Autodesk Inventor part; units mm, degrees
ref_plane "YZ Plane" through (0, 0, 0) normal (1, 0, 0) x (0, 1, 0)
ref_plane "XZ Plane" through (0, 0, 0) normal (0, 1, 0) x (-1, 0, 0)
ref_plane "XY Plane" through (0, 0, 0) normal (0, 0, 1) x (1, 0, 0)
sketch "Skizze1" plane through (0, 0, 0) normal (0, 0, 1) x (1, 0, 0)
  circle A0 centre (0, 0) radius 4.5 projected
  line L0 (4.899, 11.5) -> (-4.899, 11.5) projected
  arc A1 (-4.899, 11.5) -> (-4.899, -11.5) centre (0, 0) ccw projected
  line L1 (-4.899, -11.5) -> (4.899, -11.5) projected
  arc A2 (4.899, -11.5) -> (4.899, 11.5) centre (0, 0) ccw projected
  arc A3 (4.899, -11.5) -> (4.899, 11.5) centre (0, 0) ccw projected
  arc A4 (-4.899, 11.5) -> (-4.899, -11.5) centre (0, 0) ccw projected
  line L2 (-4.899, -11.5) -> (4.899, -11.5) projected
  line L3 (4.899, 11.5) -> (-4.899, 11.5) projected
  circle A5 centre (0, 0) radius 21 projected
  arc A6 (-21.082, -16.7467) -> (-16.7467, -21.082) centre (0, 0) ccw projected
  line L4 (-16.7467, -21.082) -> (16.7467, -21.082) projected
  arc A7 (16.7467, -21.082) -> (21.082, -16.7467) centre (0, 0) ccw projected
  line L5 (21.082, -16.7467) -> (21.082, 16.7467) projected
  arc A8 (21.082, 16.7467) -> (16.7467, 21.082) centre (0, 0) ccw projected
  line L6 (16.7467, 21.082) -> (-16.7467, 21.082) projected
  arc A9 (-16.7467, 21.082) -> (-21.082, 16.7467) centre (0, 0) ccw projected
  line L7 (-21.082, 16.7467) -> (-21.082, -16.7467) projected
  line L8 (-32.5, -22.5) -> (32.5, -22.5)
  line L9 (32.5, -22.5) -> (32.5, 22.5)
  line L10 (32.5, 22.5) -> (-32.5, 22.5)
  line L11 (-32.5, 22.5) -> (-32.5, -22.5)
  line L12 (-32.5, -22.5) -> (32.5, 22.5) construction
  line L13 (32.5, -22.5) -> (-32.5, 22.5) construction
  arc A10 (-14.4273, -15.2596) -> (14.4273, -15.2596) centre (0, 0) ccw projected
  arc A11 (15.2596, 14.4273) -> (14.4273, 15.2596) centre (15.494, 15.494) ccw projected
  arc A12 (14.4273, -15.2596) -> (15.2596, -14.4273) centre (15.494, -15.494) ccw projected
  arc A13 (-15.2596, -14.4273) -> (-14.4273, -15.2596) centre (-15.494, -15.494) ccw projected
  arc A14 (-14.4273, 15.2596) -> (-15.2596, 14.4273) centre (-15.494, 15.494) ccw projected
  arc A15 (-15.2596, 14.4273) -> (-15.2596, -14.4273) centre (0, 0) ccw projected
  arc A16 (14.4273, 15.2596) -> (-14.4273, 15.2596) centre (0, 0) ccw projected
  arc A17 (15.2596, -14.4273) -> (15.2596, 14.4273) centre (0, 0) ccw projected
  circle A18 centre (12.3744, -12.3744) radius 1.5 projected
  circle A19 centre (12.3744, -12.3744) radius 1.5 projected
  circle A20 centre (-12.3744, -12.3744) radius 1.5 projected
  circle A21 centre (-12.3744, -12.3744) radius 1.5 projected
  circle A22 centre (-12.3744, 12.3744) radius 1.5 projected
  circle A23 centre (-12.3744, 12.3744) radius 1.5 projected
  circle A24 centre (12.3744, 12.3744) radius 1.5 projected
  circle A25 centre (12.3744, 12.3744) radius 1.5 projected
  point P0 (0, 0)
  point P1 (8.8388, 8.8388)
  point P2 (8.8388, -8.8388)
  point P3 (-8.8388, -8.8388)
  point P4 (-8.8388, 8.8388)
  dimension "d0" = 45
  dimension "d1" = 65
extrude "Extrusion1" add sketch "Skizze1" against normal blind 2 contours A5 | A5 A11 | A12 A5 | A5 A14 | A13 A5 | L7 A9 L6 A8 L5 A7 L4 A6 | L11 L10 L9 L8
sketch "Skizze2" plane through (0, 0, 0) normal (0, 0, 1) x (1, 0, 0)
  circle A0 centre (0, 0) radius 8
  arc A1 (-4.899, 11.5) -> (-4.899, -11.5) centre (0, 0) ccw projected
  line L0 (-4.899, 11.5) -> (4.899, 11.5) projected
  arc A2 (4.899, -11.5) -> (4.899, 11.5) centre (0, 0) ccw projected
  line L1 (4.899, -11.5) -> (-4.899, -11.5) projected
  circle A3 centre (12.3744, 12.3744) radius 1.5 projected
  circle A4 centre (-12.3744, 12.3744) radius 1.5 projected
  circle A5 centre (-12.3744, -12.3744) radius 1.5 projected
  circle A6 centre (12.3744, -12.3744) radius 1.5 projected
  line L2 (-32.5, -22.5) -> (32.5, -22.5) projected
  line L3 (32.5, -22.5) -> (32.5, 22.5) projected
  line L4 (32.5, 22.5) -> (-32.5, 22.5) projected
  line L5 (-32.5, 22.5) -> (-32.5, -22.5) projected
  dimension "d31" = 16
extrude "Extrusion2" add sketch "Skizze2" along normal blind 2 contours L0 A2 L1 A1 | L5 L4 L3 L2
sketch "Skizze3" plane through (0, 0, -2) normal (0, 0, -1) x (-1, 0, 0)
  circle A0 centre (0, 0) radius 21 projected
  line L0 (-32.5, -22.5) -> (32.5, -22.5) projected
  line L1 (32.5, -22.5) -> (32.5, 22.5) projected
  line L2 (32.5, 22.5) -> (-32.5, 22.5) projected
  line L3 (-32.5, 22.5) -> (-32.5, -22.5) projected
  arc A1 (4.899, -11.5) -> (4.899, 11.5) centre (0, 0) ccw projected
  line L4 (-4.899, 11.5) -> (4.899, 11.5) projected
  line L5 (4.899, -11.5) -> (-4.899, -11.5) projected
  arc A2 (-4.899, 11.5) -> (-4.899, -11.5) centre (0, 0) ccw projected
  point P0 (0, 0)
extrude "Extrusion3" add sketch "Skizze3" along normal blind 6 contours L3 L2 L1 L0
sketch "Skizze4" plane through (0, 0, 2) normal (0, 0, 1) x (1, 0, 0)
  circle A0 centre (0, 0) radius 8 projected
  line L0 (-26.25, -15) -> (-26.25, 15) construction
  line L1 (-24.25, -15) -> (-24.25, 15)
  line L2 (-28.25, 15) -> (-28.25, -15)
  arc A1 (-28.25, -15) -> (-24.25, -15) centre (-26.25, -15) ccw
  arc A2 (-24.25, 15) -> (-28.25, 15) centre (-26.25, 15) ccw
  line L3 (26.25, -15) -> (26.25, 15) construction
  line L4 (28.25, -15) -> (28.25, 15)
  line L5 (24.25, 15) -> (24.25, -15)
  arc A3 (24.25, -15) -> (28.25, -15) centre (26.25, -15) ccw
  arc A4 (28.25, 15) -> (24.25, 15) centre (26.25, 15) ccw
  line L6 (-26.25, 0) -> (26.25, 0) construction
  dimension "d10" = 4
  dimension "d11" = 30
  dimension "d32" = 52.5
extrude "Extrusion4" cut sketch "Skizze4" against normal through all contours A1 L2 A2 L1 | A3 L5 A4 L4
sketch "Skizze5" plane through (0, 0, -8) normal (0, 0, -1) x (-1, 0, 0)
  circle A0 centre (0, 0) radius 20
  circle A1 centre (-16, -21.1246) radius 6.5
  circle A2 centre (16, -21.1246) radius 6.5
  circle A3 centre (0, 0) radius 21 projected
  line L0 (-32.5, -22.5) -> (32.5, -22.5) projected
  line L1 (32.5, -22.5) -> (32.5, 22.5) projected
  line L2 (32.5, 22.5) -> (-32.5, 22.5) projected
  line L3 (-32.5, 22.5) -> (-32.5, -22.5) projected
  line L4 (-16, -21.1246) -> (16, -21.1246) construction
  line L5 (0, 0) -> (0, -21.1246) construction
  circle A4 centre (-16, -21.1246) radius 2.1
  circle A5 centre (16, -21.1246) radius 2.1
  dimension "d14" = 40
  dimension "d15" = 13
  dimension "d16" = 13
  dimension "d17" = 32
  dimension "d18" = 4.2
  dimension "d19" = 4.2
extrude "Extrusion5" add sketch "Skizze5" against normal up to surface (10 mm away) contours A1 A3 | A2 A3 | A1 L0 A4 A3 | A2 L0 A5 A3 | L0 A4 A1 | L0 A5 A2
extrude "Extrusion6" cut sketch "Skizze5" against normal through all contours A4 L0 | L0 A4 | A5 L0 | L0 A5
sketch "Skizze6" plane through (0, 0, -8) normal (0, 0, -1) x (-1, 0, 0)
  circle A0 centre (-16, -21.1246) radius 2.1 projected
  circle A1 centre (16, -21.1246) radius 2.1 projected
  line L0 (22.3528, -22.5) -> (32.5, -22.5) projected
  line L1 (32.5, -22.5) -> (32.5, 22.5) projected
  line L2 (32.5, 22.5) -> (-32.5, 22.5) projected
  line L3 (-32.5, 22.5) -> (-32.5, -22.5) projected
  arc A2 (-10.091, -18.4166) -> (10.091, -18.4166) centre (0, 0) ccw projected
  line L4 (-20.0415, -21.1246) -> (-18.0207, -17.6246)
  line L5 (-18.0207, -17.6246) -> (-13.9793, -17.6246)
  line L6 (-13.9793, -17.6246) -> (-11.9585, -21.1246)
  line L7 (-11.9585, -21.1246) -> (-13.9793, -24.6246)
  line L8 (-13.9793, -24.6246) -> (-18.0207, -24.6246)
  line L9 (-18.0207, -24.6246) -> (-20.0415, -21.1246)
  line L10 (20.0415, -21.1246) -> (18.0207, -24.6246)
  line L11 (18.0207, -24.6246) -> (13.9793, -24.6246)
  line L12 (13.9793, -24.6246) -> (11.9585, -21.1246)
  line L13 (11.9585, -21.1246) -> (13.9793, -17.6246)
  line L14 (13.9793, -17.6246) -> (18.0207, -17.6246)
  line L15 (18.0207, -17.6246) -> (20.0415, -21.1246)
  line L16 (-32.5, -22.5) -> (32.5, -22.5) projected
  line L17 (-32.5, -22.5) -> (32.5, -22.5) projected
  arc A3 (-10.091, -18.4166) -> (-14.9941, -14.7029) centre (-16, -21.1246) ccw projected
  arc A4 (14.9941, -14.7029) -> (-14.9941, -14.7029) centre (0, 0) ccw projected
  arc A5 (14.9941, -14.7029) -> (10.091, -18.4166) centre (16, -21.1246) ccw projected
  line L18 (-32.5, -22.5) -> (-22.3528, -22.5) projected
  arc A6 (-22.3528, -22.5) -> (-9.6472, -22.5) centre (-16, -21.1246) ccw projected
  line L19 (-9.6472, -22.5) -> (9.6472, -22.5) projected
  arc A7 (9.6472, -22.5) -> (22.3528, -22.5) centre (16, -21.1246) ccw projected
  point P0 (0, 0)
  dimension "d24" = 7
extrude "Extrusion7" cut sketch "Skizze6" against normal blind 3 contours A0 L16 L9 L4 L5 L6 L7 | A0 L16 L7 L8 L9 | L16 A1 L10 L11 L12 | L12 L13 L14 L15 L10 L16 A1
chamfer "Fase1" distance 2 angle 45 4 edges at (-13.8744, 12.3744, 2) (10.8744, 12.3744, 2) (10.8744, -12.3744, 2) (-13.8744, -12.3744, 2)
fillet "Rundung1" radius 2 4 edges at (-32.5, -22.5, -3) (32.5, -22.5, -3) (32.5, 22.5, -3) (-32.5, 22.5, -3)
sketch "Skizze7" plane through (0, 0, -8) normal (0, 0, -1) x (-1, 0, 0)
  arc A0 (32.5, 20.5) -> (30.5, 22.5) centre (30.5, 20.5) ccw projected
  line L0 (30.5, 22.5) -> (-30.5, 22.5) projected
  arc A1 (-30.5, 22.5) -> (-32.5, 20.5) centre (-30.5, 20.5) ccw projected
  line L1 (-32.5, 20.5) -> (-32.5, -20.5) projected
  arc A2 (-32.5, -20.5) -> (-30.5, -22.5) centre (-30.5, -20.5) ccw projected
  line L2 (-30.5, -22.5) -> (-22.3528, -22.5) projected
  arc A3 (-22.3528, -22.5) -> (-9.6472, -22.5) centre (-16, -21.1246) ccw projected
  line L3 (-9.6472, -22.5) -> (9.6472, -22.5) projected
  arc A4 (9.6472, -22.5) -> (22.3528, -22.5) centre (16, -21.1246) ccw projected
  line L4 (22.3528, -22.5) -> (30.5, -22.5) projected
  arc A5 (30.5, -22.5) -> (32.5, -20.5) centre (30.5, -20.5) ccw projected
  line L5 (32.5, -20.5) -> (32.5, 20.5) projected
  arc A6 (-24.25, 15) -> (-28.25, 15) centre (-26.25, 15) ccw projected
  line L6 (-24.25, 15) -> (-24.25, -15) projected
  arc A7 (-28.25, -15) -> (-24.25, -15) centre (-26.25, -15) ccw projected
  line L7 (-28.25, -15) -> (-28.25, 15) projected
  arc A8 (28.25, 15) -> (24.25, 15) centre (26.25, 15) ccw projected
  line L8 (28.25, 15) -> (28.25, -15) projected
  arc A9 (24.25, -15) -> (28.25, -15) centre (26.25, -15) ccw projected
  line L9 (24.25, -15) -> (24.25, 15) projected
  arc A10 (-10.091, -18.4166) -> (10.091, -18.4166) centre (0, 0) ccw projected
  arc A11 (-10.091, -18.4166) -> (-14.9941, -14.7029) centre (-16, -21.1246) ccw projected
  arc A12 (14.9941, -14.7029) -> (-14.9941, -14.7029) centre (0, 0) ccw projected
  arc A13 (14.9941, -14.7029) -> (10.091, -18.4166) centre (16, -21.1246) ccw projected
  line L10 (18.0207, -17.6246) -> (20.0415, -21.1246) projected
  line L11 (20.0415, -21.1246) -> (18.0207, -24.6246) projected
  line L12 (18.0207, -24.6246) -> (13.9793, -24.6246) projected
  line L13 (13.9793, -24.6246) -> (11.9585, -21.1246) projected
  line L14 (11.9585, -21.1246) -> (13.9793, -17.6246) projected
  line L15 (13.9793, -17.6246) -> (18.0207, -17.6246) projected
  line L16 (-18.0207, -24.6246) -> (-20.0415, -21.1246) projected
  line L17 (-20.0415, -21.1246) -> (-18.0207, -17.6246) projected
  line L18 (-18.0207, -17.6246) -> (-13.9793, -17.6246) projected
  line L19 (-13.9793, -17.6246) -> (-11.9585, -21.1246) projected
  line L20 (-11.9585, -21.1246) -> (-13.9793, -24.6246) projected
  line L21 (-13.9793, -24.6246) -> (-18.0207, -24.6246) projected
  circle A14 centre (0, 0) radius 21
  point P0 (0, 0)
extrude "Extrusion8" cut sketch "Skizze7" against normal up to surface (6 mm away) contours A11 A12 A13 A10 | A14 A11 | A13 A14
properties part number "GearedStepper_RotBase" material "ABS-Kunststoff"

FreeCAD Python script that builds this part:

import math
import FreeCAD as App
import Part
import Sketcher
from FreeCAD import Vector
Q = App.Units.Quantity


def edges_at(feature, points):
    """Names of the edges that pass closest to the given points."""
    edges = feature.Shape.Edges
    near = lambda p: min(range(len(edges)), key=lambda i: edges[i].distToShape(Part.Vertex(*p))[0])
    return sorted({f"Edge{near(p) + 1}" for p in points})

doc = App.newDocument("Part")
body = doc.addObject("PartDesign::Body", "Body")

# Sketch on XY plane
sketch1 = body.newObject("Sketcher::SketchObject", "Sketch")
sketch1.AttachmentSupport = (doc.getObject("XY_Plane"), [""])
sketch1.MapMode = "FlatFace"
sketch1.addGeometry([
    Part.LineSegment(Vector(-32.5, 22.5, 0), Vector(-32.5, -22.5, 0)),  # 0
    Part.LineSegment(Vector(-32.5, -22.5, 0), Vector(32.5, -22.5, 0)),  # 1
    Part.LineSegment(Vector(32.5, -22.5, 0), Vector(32.5, 22.5, 0)),  # 2
    Part.LineSegment(Vector(32.5, 22.5, 0), Vector(-32.5, 22.5, 0)),  # 3
    Part.Circle(Vector(-12.4, -12.4, 0), Vector(0, 0, 1), 1.5),  # 4
    Part.Circle(Vector(12.4, -12.4, 0), Vector(0, 0, 1), 1.5),  # 5
    Part.Circle(Vector(-12.4, 12.4, 0), Vector(0, 0, 1), 1.5),  # 6
    Part.LineSegment(Vector(-4.9, 11.5, 0), Vector(4.9, 11.5, 0)),  # 7
    Part.ArcOfCircle(Part.Circle(Vector(0, 0, 0), Vector(0, 0, 1), 12.5), math.radians(-67), math.radians(67)),  # 8
    Part.LineSegment(Vector(4.9, -11.5, 0), Vector(-4.9, -11.5, 0)),  # 9
    Part.ArcOfCircle(Part.Circle(Vector(0, 0, 0), Vector(0, 0, 1), 12.5), math.radians(113), math.radians(247)),  # 10
    Part.Circle(Vector(12.4, 12.4, 0), Vector(0, 0, 1), 1.5),  # 11
], False)
sketch1.addConstraint([
    Sketcher.Constraint("Coincident", 0, 2, 1, 1),
    Sketcher.Constraint("Coincident", 1, 2, 2, 1),
    Sketcher.Constraint("Coincident", 2, 2, 3, 1),
    Sketcher.Constraint("Coincident", 3, 2, 0, 1),
    Sketcher.Constraint("Coincident", 7, 2, 8, 2),
    Sketcher.Constraint("Coincident", 8, 1, 9, 1),
    Sketcher.Constraint("Coincident", 9, 2, 10, 2),
    Sketcher.Constraint("Coincident", 10, 1, 7, 1),
    Sketcher.Constraint("Vertical", 0),
    Sketcher.Constraint("Horizontal", 1),
    Sketcher.Constraint("Vertical", 2),
    Sketcher.Constraint("Horizontal", 3),
    Sketcher.Constraint("Horizontal", 7),
    Sketcher.Constraint("Horizontal", 9),
    Sketcher.Constraint("Coincident", 8, 3, -1, 1),
    Sketcher.Constraint("Coincident", 10, 3, -1, 1),
    Sketcher.Constraint("Equal", 4, 5),
    Sketcher.Constraint("Equal", 5, 6),
    Sketcher.Constraint("Equal", 8, 10),
    Sketcher.Constraint("Equal", 6, 11),
    Sketcher.Constraint("Symmetric", 5, 3, 6, 3, -1, 1),
    Sketcher.Constraint("Symmetric", 4, 3, 11, 3, -1, 1),
    Sketcher.Constraint("Symmetric", 0, 2, 2, 2, -1, 1),
    Sketcher.Constraint("Symmetric", 4, 3, 5, 3, -2),
    Sketcher.Constraint("Vertical", 7, 2, 8, 1),
    Sketcher.Constraint("DistanceX", 1, 1, 1, 2, 65.0),
    Sketcher.Constraint("DistanceY", 0, 2, 0, 1, 45.0),
    Sketcher.Constraint("Diameter", 4, 3.0),
    Sketcher.Constraint("Radius", 8, 12.5),
    Sketcher.Constraint("DistanceY", 8, 1, 7, 2, 23.0),
    Sketcher.Constraint("DistanceX", 4, 3, -1, 1, 12.3744),
    Sketcher.Constraint("DistanceY", 4, 3, -1, 1, 12.3744),
])
pad1 = body.newObject("PartDesign::Pad", "Pad")
pad1.Profile = sketch1
pad1.Length = 2
pad1.Reversed = True

# Sketch on XY plane
sketch2 = body.newObject("Sketcher::SketchObject", "Sketch001")
sketch2.AttachmentSupport = (doc.getObject("XY_Plane"), [""])
sketch2.MapMode = "FlatFace"
sketch2.addGeometry([
    Part.LineSegment(Vector(-32.5, 22.5, 0), Vector(-32.5, -22.5, 0)),  # 0
    Part.LineSegment(Vector(-32.5, -22.5, 0), Vector(32.5, -22.5, 0)),  # 1
    Part.LineSegment(Vector(32.5, -22.5, 0), Vector(32.5, 22.5, 0)),  # 2
    Part.LineSegment(Vector(32.5, 22.5, 0), Vector(-32.5, 22.5, 0)),  # 3
    Part.Circle(Vector(0, 0, 0), Vector(0, 0, 1), 8),  # 4
    Part.Circle(Vector(-12.4, -12.4, 0), Vector(0, 0, 1), 1.5),  # 5
    Part.Circle(Vector(12.4, -12.4, 0), Vector(0, 0, 1), 1.5),  # 6
    Part.Circle(Vector(-12.4, 12.4, 0), Vector(0, 0, 1), 1.5),  # 7
    Part.Circle(Vector(12.4, 12.4, 0), Vector(0, 0, 1), 1.5),  # 8
], False)
sketch2.addConstraint([
    Sketcher.Constraint("Coincident", 0, 2, 1, 1),
    Sketcher.Constraint("Coincident", 1, 2, 2, 1),
    Sketcher.Constraint("Coincident", 2, 2, 3, 1),
    Sketcher.Constraint("Coincident", 3, 2, 0, 1),
    Sketcher.Constraint("Vertical", 0),
    Sketcher.Constraint("Horizontal", 1),
    Sketcher.Constraint("Vertical", 2),
    Sketcher.Constraint("Horizontal", 3),
    Sketcher.Constraint("Coincident", 4, 3, -1, 1),
    Sketcher.Constraint("Equal", 5, 6),
    Sketcher.Constraint("Equal", 6, 7),
    Sketcher.Constraint("Equal", 7, 8),
    Sketcher.Constraint("Symmetric", 6, 3, 7, 3, -1, 1),
    Sketcher.Constraint("Symmetric", 5, 3, 8, 3, -1, 1),
    Sketcher.Constraint("Symmetric", 0, 2, 2, 2, -1, 1),
    Sketcher.Constraint("Symmetric", 5, 3, 6, 3, -2),
    Sketcher.Constraint("Diameter", 4, 16.0),
    Sketcher.Constraint("Diameter", 5, 3.0),
    Sketcher.Constraint("DistanceX", 1, 1, 1, 2, 65.0),
    Sketcher.Constraint("DistanceY", 0, 2, 0, 1, 45.0),
    Sketcher.Constraint("DistanceX", 5, 3, -1, 1, 12.3744),
    Sketcher.Constraint("DistanceY", 5, 3, -1, 1, 12.3744),
])
pad2 = body.newObject("PartDesign::Pad", "Pad001")
pad2.Profile = sketch2
pad2.Length = 2

# Sketch on XY plane
sketch3 = body.newObject("Sketcher::SketchObject", "Sketch002")
sketch3.AttachmentSupport = (doc.getObject("XY_Plane"), [""])
sketch3.MapMode = "FlatFace"
sketch3.AttachmentOffset = App.Placement(Vector(0, 0, -2), App.Rotation())
sketch3.addGeometry([
    Part.LineSegment(Vector(32, 22, 0), Vector(32, -22, 0)),  # 0
    Part.LineSegment(Vector(32, -22, 0), Vector(-32, -22, 0)),  # 1
    Part.LineSegment(Vector(-32, -22, 0), Vector(-32, 22, 0)),  # 2
    Part.LineSegment(Vector(-32, 22, 0), Vector(32, 22, 0)),  # 3
    Part.Circle(Vector(0, 0, 0), Vector(0, 0, 1), 21),  # 4
], False)
sketch3.addConstraint([
    Sketcher.Constraint("Coincident", 0, 2, 1, 1),
    Sketcher.Constraint("Coincident", 1, 2, 2, 1),
    Sketcher.Constraint("Coincident", 2, 2, 3, 1),
    Sketcher.Constraint("Coincident", 3, 2, 0, 1),
    Sketcher.Constraint("Vertical", 0),
    Sketcher.Constraint("Horizontal", 1),
    Sketcher.Constraint("Vertical", 2),
    Sketcher.Constraint("Horizontal", 3),
    Sketcher.Constraint("Coincident", 4, 3, -1, 1),
    Sketcher.Constraint("Symmetric", 0, 2, 2, 2, -1, 1),
    Sketcher.Constraint("Diameter", 4, 42.0),
    Sketcher.Constraint("DistanceX", 1, 2, 1, 1, 65.0),
    Sketcher.Constraint("DistanceY", 0, 2, 0, 1, 45.0),
])
pad3 = body.newObject("PartDesign::Pad", "Pad002")
pad3.Profile = sketch3
pad3.Length = 6
pad3.Reversed = True

# Sketch on XY plane
sketch4 = body.newObject("Sketcher::SketchObject", "Sketch003")
sketch4.AttachmentSupport = (doc.getObject("XY_Plane"), [""])
sketch4.MapMode = "FlatFace"
sketch4.AttachmentOffset = App.Placement(Vector(0, 0, 2), App.Rotation())
sketch4.addGeometry([
    Part.ArcOfCircle(Part.Circle(Vector(-26.2, -15, 0), Vector(0, 0, 1), 2), math.radians(180), math.radians(360)),  # 0
    Part.LineSegment(Vector(-24.2, -15, 0), Vector(-24.2, 15, 0)),  # 1
    Part.ArcOfCircle(Part.Circle(Vector(-26.2, 15, 0), Vector(0, 0, 1), 2), math.radians(0), math.radians(180)),  # 2
    Part.LineSegment(Vector(-28.2, 15, 0), Vector(-28.2, -15, 0)),  # 3
    Part.ArcOfCircle(Part.Circle(Vector(26.2, -15, 0), Vector(0, 0, 1), 2), math.radians(180), math.radians(360)),  # 4
    Part.LineSegment(Vector(28.2, -15, 0), Vector(28.2, 15, 0)),  # 5
    Part.ArcOfCircle(Part.Circle(Vector(26.2, 15, 0), Vector(0, 0, 1), 2), math.radians(0), math.radians(180)),  # 6
    Part.LineSegment(Vector(24.2, 15, 0), Vector(24.2, -15, 0)),  # 7
], False)
sketch4.addConstraint([
    Sketcher.Constraint("Tangent", 0, 2, 1, 1),
    Sketcher.Constraint("Tangent", 1, 2, 2, 1),
    Sketcher.Constraint("Tangent", 2, 2, 3, 1),
    Sketcher.Constraint("Tangent", 3, 2, 0, 1),
    Sketcher.Constraint("Tangent", 4, 2, 5, 1),
    Sketcher.Constraint("Tangent", 5, 2, 6, 1),
    Sketcher.Constraint("Tangent", 6, 2, 7, 1),
    Sketcher.Constraint("Tangent", 7, 2, 4, 1),
    Sketcher.Constraint("Vertical", 1),
    Sketcher.Constraint("Vertical", 3),
    Sketcher.Constraint("Vertical", 5),
    Sketcher.Constraint("Vertical", 7),
    Sketcher.Constraint("Equal", 2, 4),
    Sketcher.Constraint("Symmetric", 2, 3, 4, 3, -1, 1),
    Sketcher.Constraint("Horizontal", 0, 3, 4, 3),
    Sketcher.Constraint("Horizontal", 2, 3, 6, 3),
    Sketcher.Constraint("Radius", 0, 2.0),
    Sketcher.Constraint("DistanceY", 1, 1, 1, 2, 30.0),
    Sketcher.Constraint("DistanceX", 0, 3, 4, 3, 52.5),
])
pocket1 = body.newObject("PartDesign::Pocket", "Pocket")
pocket1.Profile = sketch4
pocket1.Type = "ThroughAll"

# Sketch on XY plane
sketch5 = body.newObject("Sketcher::SketchObject", "Sketch004")
sketch5.AttachmentSupport = (doc.getObject("XY_Plane"), [""])
sketch5.MapMode = "FlatFace"
sketch5.AttachmentOffset = App.Placement(Vector(0, 0, -8), App.Rotation())
sketch5.addGeometry([
    Part.Circle(Vector(16, -21.1, 0), Vector(0, 0, 1), 6.5),
    Part.Circle(Vector(16, -21.1, 0), Vector(0, 0, 1), 2.1),
    Part.Circle(Vector(-16, -21.1, 0), Vector(0, 0, 1), 6.5),
    Part.Circle(Vector(-16, -21.1, 0), Vector(0, 0, 1), 2.1),
], False)
sketch5.addConstraint([
    Sketcher.Constraint("Coincident", 1, 3, 0, 3),
    Sketcher.Constraint("Coincident", 3, 3, 2, 3),
    Sketcher.Constraint("Equal", 0, 2),
    Sketcher.Constraint("Equal", 1, 3),
    Sketcher.Constraint("Symmetric", 0, 3, 2, 3, -2),
    Sketcher.Constraint("Diameter", 0, 13.0),
    Sketcher.Constraint("Diameter", 1, 4.2),
    Sketcher.Constraint("DistanceX", 2, 3, 0, 3, 32.0),
    Sketcher.Constraint("DistanceY", 0, 3, -1, 1, 21.1246),
])
pad4 = body.newObject("PartDesign::Pad", "Pad003")
pad4.Profile = sketch5
pad4.Length = 10

# Sketch on XY plane
sketch6 = body.newObject("Sketcher::SketchObject", "Sketch005")
sketch6.AttachmentSupport = (doc.getObject("XY_Plane"), [""])
sketch6.MapMode = "FlatFace"
sketch6.AttachmentOffset = App.Placement(Vector(0, 0, -8), App.Rotation())
sketch6.addGeometry([
    Part.Circle(Vector(16, -21.1, 0), Vector(0, 0, 1), 2.1),
    Part.Circle(Vector(-16, -21.1, 0), Vector(0, 0, 1), 2.1),
], False)
sketch6.addConstraint([
    Sketcher.Constraint("Equal", 0, 1),
    Sketcher.Constraint("Symmetric", 0, 3, 1, 3, -2),
    Sketcher.Constraint("Diameter", 0, 4.2),
    Sketcher.Constraint("DistanceX", 1, 3, 0, 3, 32.0),
    Sketcher.Constraint("DistanceY", 0, 3, -1, 1, 21.1246),
])
pocket2 = body.newObject("PartDesign::Pocket", "Pocket001")
pocket2.Profile = sketch6
pocket2.Type = "ThroughAll"
pocket2.Reversed = True

# Sketch on XY plane
sketch7 = body.newObject("Sketcher::SketchObject", "Sketch006")
sketch7.AttachmentSupport = (doc.getObject("XY_Plane"), [""])
sketch7.MapMode = "FlatFace"
sketch7.AttachmentOffset = App.Placement(Vector(0, 0, -8), App.Rotation())
sketch7.addGeometry([
    Part.LineSegment(Vector(20, -21.1, 0), Vector(18, -24.6, 0)),  # 0
    Part.LineSegment(Vector(18, -24.6, 0), Vector(14, -24.6, 0)),  # 1
    Part.LineSegment(Vector(14, -24.6, 0), Vector(12, -21.1, 0)),  # 2
    Part.LineSegment(Vector(12, -21.1, 0), Vector(14, -17.6, 0)),  # 3
    Part.LineSegment(Vector(14, -17.6, 0), Vector(18, -17.6, 0)),  # 4
    Part.LineSegment(Vector(18, -17.6, 0), Vector(20, -21.1, 0)),  # 5
    Part.Circle(Vector(16, -21.1, 0), Vector(0, 0, 1), 2.1),  # 6
    Part.LineSegment(Vector(-18, -24.6, 0), Vector(-20, -21.1, 0)),  # 7
    Part.LineSegment(Vector(-20, -21.1, 0), Vector(-18, -17.6, 0)),  # 8
    Part.LineSegment(Vector(-18, -17.6, 0), Vector(-14, -17.6, 0)),  # 9
    Part.LineSegment(Vector(-14, -17.6, 0), Vector(-12, -21.1, 0)),  # 10
    Part.LineSegment(Vector(-12, -21.1, 0), Vector(-14, -24.6, 0)),  # 11
    Part.LineSegment(Vector(-14, -24.6, 0), Vector(-18, -24.6, 0)),  # 12
    Part.Circle(Vector(-16, -21.1, 0), Vector(0, 0, 1), 2.1),  # 13
], False)
sketch7.addConstraint([
    Sketcher.Constraint("Coincident", 0, 2, 1, 1),
    Sketcher.Constraint("Coincident", 1, 2, 2, 1),
    Sketcher.Constraint("Coincident", 2, 2, 3, 1),
    Sketcher.Constraint("Coincident", 3, 2, 4, 1),
    Sketcher.Constraint("Coincident", 4, 2, 5, 1),
    Sketcher.Constraint("Coincident", 5, 2, 0, 1),
    Sketcher.Constraint("Coincident", 7, 2, 8, 1),
    Sketcher.Constraint("Coincident", 8, 2, 9, 1),
    Sketcher.Constraint("Coincident", 9, 2, 10, 1),
    Sketcher.Constraint("Coincident", 10, 2, 11, 1),
    Sketcher.Constraint("Coincident", 11, 2, 12, 1),
    Sketcher.Constraint("Coincident", 12, 2, 7, 1),
    Sketcher.Constraint("Horizontal", 1),
    Sketcher.Constraint("Horizontal", 4),
    Sketcher.Constraint("Horizontal", 9),
    Sketcher.Constraint("Horizontal", 12),
    Sketcher.Constraint("Equal", 6, 13),
    Sketcher.Constraint("Symmetric", 6, 3, 13, 3, -2),
    Sketcher.Constraint("Symmetric", 5, 2, 7, 2, -2),
    Sketcher.Constraint("Symmetric", 4, 2, 8, 2, -2),
    Sketcher.Constraint("Symmetric", 2, 2, 10, 2, -2),
    Sketcher.Constraint("Symmetric", 1, 2, 11, 2, -2),
    Sketcher.Constraint("Parallel", 0, 3),
    Sketcher.Constraint("Parallel", 2, 5),
    Sketcher.Constraint("Parallel", 5, 7),
    Sketcher.Constraint("Parallel", 3, 8),
    Sketcher.Constraint("Parallel", 7, 10),
    Sketcher.Constraint("Horizontal", 13, 3, 2, 2),
    Sketcher.Constraint("Horizontal", 2, 2, 5, 2),
    Sketcher.Constraint("Vertical", 1, 2, 3, 2),
    Sketcher.Constraint("DistanceY", 1, 2, 3, 2, 7.0),
    Sketcher.Constraint("Diameter", 6, 4.2),
    Sketcher.Constraint("Angle", 0, Q("-120.001 deg")),
    Sketcher.Constraint("DistanceX", -1, 1, 6, 3, 16.0),
    Sketcher.Constraint("DistanceX", 7, 2, 2, 2, 32.0),
    Sketcher.Constraint("DistanceX", 1, 2, 1, 1, 4.0414),
    Sketcher.Constraint("DistanceY", 6, 3, -1, 1, 21.1246),
])
pocket3 = body.newObject("PartDesign::Pocket", "Pocket002")
pocket3.Profile = sketch7
pocket3.Length = 3
pocket3.Reversed = True
doc.recompute()

chamfer = body.newObject("PartDesign::Chamfer", "Chamfer")
chamfer.Base = (pocket3, edges_at(pocket3, [
    (-13.874, 12.374, 2),
    (10.874, 12.374, 2),
    (10.874, -12.374, 2),
    (-13.874, -12.374, 2),
]))
chamfer.Size = 2
doc.recompute()

fillet = body.newObject("PartDesign::Fillet", "Fillet")
fillet.Base = (chamfer, edges_at(chamfer, [
    (-32.5, -22.5, -3),
    (32.5, -22.5, -3),
    (32.5, 22.5, -3),
    (-32.5, 22.5, -3),
]))
fillet.Radius = 2

# Sketch on XY plane
sketch8 = body.newObject("Sketcher::SketchObject", "Sketch007")
sketch8.AttachmentSupport = (doc.getObject("XY_Plane"), [""])
sketch8.MapMode = "FlatFace"
sketch8.AttachmentOffset = App.Placement(Vector(0, 0, -8), App.Rotation())
sketch8.addGeometry(Part.Circle(Vector(0, 0, 0), Vector(0, 0, 1), 21), False)
sketch8.addConstraint([
    Sketcher.Constraint("Coincident", 0, 3, -1, 1),
    Sketcher.Constraint("Diameter", 0, 42.0),
])
pocket4 = body.newObject("PartDesign::Pocket", "Pocket003")
pocket4.Profile = sketch8
pocket4.Length = 6
pocket4.Reversed = True

doc.recompute()
